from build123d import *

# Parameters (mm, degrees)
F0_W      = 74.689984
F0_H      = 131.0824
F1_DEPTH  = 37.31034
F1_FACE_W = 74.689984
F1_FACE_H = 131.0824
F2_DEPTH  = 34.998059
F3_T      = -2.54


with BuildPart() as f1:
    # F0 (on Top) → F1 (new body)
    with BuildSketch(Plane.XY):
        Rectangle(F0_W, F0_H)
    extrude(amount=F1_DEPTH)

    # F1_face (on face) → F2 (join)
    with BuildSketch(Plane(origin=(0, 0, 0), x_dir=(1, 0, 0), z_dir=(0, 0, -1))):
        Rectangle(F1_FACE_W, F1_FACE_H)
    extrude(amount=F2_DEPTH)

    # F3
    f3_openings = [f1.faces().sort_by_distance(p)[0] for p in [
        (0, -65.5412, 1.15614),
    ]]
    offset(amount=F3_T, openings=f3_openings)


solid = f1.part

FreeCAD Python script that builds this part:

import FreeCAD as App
import Part
import Sketcher
Q = App.Units.Quantity


def faces_at(feature, points):
    """Names of the faces that lie closest to the given points."""
    faces = feature.Shape.Faces
    near = lambda p: min(range(len(faces)), key=lambda i: faces[i].distToShape(Part.Vertex(*p))[0])
    return sorted({f"Face{near(p) + 1}" for p in points})

doc = App.newDocument("Part")
body = doc.addObject("PartDesign::Body", "Body")

# Sketch on XY plane
sketch1 = body.newObject("Sketcher::SketchObject", "Sketch")
sketch1.AttachmentSupport = (doc.getObject("XY_Plane"), [""])
sketch1.MapMode = "FlatFace"
sketch1.addGeometry(Part.LineSegment(App.Vector(-37, 66, 0), App.Vector(-37, -66, 0)), False)
sketch1.addGeometry(Part.LineSegment(App.Vector(-37, -66, 0), App.Vector(37, -66, 0)), False)
sketch1.addGeometry(Part.LineSegment(App.Vector(37, -66, 0), App.Vector(37, 66, 0)), False)
sketch1.addGeometry(Part.LineSegment(App.Vector(37, 66, 0), App.Vector(-37, 66, 0)), False)
sketch1.addConstraint(Sketcher.Constraint("Coincident", 0, 2, 1, 1))
sketch1.addConstraint(Sketcher.Constraint("Coincident", 1, 2, 2, 1))
sketch1.addConstraint(Sketcher.Constraint("Coincident", 2, 2, 3, 1))
sketch1.addConstraint(Sketcher.Constraint("Coincident", 3, 2, 0, 1))
sketch1.addConstraint(Sketcher.Constraint("Vertical", 0))
sketch1.addConstraint(Sketcher.Constraint("Horizontal", 1))
sketch1.addConstraint(Sketcher.Constraint("Vertical", 2))
sketch1.addConstraint(Sketcher.Constraint("Horizontal", 3))
sketch1.addConstraint(Sketcher.Constraint("Symmetric", 0, 2, 2, 2, -1, 1))
sketch1.addConstraint(Sketcher.Constraint("DistanceY", 0, 2, 0, 1, Q("131.0824 mm")))
sketch1.addConstraint(Sketcher.Constraint("DistanceX", 1, 1, 1, 2, Q("74.689984 mm")))
pad1 = body.newObject("PartDesign::Pad", "Pad")
pad1.Profile = sketch1
pad1.Length = 37.31034

# Sketch on XY plane
sketch2 = body.newObject("Sketcher::SketchObject", "Sketch001")
sketch2.AttachmentSupport = (doc.getObject("XY_Plane"), [""])
sketch2.MapMode = "FlatFace"
sketch2.addGeometry(Part.LineSegment(App.Vector(-37, -66, 0), App.Vector(-37, 66, 0)), False)
sketch2.addGeometry(Part.LineSegment(App.Vector(-37, 66, 0), App.Vector(37, 66, 0)), False)
sketch2.addGeometry(Part.LineSegment(App.Vector(37, 66, 0), App.Vector(37, -66, 0)), False)
sketch2.addGeometry(Part.LineSegment(App.Vector(37, -66, 0), App.Vector(-37, -66, 0)), False)
sketch2.addConstraint(Sketcher.Constraint("Coincident", 0, 2, 1, 1))
sketch2.addConstraint(Sketcher.Constraint("Coincident", 1, 2, 2, 1))
sketch2.addConstraint(Sketcher.Constraint("Coincident", 2, 2, 3, 1))
sketch2.addConstraint(Sketcher.Constraint("Coincident", 3, 2, 0, 1))
sketch2.addConstraint(Sketcher.Constraint("Vertical", 0))
sketch2.addConstraint(Sketcher.Constraint("Horizontal", 1))
sketch2.addConstraint(Sketcher.Constraint("Vertical", 2))
sketch2.addConstraint(Sketcher.Constraint("Horizontal", 3))
sketch2.addConstraint(Sketcher.Constraint("Symmetric", 0, 2, 2, 2, -1, 1))
sketch2.addConstraint(Sketcher.Constraint("DistanceY", 0, 1, 0, 2, Q("131.0824 mm")))
sketch2.addConstraint(Sketcher.Constraint("DistanceX", 1, 1, 1, 2, Q("74.689984 mm")))
pad2 = body.newObject("PartDesign::Pad", "Pad001")
pad2.Profile = sketch2
pad2.Length = 34.998059
pad2.Reversed = True
doc.recompute()

thickness = body.newObject("PartDesign::Thickness", "Thickness")
thickness.Base = (pad2, faces_at(pad2, [(0, -65.541, 1.156)]))
thickness.Value = Q("0.1 in")
thickness.Reversed = True
thickness.Join = "Arc"

doc.recompute()
